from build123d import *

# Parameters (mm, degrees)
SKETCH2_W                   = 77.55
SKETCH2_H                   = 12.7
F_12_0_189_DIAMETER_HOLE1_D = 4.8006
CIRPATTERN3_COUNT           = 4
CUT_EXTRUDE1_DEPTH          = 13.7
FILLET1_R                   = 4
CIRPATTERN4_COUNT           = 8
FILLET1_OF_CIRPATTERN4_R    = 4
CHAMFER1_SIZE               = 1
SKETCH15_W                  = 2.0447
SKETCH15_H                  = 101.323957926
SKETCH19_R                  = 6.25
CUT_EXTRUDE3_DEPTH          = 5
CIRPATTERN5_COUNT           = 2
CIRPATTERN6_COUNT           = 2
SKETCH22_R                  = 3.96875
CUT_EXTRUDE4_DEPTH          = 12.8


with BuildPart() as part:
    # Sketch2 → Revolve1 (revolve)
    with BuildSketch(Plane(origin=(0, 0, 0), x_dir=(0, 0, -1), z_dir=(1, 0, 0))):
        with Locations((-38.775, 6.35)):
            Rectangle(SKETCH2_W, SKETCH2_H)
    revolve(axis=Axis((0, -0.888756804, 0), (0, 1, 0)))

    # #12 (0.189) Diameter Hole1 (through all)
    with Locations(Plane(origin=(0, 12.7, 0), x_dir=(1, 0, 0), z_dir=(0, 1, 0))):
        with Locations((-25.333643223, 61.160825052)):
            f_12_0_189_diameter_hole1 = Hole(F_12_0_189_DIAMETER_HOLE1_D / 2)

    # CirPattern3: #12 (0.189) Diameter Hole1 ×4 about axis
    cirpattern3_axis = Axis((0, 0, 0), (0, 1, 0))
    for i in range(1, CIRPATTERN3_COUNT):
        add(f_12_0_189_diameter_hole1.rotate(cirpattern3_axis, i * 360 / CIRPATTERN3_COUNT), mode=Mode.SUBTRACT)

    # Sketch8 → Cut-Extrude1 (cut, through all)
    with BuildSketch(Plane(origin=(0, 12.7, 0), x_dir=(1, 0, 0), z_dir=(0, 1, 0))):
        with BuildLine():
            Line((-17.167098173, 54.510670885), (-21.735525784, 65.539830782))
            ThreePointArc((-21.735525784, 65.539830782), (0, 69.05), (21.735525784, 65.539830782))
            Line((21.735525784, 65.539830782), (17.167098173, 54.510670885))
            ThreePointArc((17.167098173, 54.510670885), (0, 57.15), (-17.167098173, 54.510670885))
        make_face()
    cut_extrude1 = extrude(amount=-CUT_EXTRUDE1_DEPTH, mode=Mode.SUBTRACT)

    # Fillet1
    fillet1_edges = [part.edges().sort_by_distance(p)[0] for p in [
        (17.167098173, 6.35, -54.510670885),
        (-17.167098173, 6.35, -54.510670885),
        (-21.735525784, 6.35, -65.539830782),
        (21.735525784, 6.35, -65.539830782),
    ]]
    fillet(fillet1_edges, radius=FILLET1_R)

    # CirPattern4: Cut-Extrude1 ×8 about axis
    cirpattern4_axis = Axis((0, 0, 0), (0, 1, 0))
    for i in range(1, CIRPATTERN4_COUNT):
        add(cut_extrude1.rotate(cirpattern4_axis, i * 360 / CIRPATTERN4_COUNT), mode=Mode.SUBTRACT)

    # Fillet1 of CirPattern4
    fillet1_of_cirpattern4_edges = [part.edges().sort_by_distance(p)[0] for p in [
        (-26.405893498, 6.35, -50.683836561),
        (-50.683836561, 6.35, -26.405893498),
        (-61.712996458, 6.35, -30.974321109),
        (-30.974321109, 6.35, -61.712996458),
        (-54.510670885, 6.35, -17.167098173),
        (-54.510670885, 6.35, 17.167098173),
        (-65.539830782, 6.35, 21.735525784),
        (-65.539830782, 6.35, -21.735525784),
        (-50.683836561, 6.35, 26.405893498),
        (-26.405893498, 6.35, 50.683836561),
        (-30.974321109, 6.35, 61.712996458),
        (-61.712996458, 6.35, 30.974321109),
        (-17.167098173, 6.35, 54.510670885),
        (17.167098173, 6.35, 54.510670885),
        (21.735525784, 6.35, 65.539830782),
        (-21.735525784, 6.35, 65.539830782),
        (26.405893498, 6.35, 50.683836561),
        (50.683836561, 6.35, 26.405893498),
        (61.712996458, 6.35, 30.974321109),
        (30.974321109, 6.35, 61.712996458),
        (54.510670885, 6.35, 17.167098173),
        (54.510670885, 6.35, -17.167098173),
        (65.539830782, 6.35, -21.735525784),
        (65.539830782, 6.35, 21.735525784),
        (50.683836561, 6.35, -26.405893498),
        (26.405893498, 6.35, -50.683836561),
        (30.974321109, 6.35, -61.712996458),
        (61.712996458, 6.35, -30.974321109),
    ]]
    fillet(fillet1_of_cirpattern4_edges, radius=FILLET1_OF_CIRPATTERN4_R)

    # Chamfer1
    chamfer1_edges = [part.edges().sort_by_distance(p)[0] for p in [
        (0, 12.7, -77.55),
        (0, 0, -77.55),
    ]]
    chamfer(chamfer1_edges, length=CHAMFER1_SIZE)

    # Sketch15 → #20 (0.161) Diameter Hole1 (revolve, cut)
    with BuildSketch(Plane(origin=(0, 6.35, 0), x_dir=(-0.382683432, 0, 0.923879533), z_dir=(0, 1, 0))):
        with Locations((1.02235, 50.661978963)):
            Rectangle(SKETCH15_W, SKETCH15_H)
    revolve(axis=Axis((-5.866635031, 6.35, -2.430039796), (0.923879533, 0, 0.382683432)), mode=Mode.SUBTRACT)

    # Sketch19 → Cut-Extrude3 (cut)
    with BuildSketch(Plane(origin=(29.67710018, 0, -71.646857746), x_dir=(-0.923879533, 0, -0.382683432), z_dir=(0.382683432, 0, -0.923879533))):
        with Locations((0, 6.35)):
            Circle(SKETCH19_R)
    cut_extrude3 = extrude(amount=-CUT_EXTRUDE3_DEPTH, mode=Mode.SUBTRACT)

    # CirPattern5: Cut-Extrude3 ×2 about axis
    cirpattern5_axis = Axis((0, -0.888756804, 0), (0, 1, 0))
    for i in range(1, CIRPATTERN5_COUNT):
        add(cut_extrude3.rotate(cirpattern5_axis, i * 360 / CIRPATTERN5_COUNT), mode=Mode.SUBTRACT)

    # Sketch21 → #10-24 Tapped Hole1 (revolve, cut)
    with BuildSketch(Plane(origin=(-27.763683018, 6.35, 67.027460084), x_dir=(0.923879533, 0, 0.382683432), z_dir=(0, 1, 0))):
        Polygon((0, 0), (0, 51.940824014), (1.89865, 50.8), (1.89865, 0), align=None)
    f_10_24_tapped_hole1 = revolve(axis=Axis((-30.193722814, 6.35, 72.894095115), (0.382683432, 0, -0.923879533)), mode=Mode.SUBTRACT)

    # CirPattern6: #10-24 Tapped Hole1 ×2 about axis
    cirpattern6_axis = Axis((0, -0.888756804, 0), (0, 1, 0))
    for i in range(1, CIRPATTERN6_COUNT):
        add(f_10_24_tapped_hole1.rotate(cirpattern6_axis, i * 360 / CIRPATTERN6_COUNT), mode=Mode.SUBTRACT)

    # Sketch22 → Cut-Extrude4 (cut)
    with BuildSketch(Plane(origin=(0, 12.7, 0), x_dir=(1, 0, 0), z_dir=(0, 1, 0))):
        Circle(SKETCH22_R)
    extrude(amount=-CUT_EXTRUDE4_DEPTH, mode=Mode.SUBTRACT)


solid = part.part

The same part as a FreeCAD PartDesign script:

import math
import FreeCAD as App
import Part
import Sketcher
from FreeCAD import Vector
Q = App.Units.Quantity


def edges_at(feature, points):
    """Names of the edges that pass closest to the given points."""
    edges = feature.Shape.Edges
    near = lambda p: min(range(len(edges)), key=lambda i: edges[i].distToShape(Part.Vertex(*p))[0])
    return sorted({f"Edge{near(p) + 1}" for p in points})


def add_polygon(sketch, points):
    """Adds a closed chain of lines whose ends are joined by coincident constraints."""
    first, n = sketch.GeometryCount, len(points)
    for a, b in zip(points, points[1:] + points[:1]):
        sketch.addGeometry(Part.LineSegment(App.Vector(*a, 0), App.Vector(*b, 0)), False)
    for i in range(n):
        sketch.addConstraint(Sketcher.Constraint("Coincident", first + i, 2, first + (i + 1) % n, 1))

doc = App.newDocument("Part")
params = doc.addObject("Spreadsheet::Sheet", "Params")
for row, (alias, value) in enumerate([
    ("sketch1_width", "12.7 mm"),
    ("sketch1_height", "77.55 mm"),
    ("revolution_angle", "360 deg"),
    ("hole_diameter", "4.8006 mm"),
    ("sketch3_radius", "57.15 mm"),
    ("sketch3_radius2", "69.05 mm"),
    ("fillet_radius", "4 mm"),
    ("fillet2_radius", "4 mm"),
    ("chamfer_size", "1 mm"),
    ("groove_angle", "360 deg"),
    ("sketch5_diameter", "12.5 mm"),
    ("pocket2_length", "5 mm"),
    ("sketch6_length", "50.8 mm"),
    ("groove2_angle", "360 deg"),
    ("pocket3_length", "12.8 mm"),
], start=1):
    params.set(f"A{row}", alias)
    params.set(f"B{row}", "=" + value)
    params.setAlias(f"B{row}", alias)

body = doc.addObject("PartDesign::Body", "Body")

sketch1 = body.newObject("Sketcher::SketchObject", "Sketch")
sketch1.AttachmentSupport = (doc.getObject("YZ_Plane"), [""])
sketch1.MapMode = "FlatFace"
add_polygon(sketch1, [(13, 78), (0, 78), (0, 0), (13, 0)])
sketch1.addConstraint([
    Sketcher.Constraint("Horizontal", 0),
    Sketcher.Constraint("Vertical", 1),
    Sketcher.Constraint("Horizontal", 2),
    Sketcher.Constraint("Vertical", 3),
    Sketcher.Constraint("Coincident", 1, 2, -1, 1),
    Sketcher.Constraint("DistanceX", 0, 2, 0, 1, Q("12.7 mm")),
    Sketcher.Constraint("DistanceY", 1, 2, 1, 1, Q("77.55 mm")),
])
sketch1.setExpression("Constraints[9]", "Params.sketch1_width")
sketch1.setExpression("Constraints[10]", "Params.sketch1_height")
revolution = body.newObject("PartDesign::Revolution", "Revolution")
revolution.Profile = sketch1
revolution.ReferenceAxis = (sketch1, ["H_Axis"])
revolution.setExpression("Angle", "Params.revolution_angle")

sketch2 = body.newObject("Sketcher::SketchObject", "Sketch001")
sketch2.AttachmentSupport = (doc.getObject("XZ_Plane"), [""])
sketch2.MapMode = "FlatFace"
sketch2.AttachmentOffset = App.Placement(Vector(0, 0, -12.7), App.Rotation())
sketch2.addGeometry(Part.Circle(Vector(-25.3, -61.2, 0), Vector(0, 0, 1), 2.4), False)
sketch2.addConstraint([
    Sketcher.Constraint("Diameter", 0, Q("4.8006 mm")),
    Sketcher.Constraint("DistanceX", 0, 3, -1, 1, Q("25.333643 mm")),
    Sketcher.Constraint("DistanceY", 0, 3, -1, 1, Q("61.160825 mm")),
])
doc.recompute()
hole = body.newObject("PartDesign::Hole", "Hole")
hole.Profile = sketch2
hole.ThreadType = "None"
hole.setExpression("Diameter", "Params.hole_diameter")
hole.DepthType = "ThroughAll"
hole.Reversed = True
doc.recompute()

polarpattern = body.newObject("PartDesign::PolarPattern", "PolarPattern")
polarpattern.Originals = [hole]
polarpattern.Axis = (doc.getObject("Y_Axis"), [""])
polarpattern.Angle = 360
polarpattern.Occurrences = 4
body.Tip = polarpattern

sketch3 = body.newObject("Sketcher::SketchObject", "Sketch002")
sketch3.AttachmentSupport = (doc.getObject("XZ_Plane"), [""])
sketch3.MapMode = "FlatFace"
sketch3.AttachmentOffset = App.Placement(Vector(0, 0, -12.7), App.Rotation())
sketch3.addGeometry([
    Part.LineSegment(Vector(-22, -66, 0), Vector(-17, -55, 0)),
    Part.ArcOfCircle(Part.Circle(Vector(0, 0, 0), Vector(0, 0, 1), 57), math.radians(-107), math.radians(-73)),
    Part.LineSegment(Vector(17, -55, 0), Vector(22, -66, 0)),
    Part.ArcOfCircle(Part.Circle(Vector(0, 0, 0), Vector(0, 0, 1), 69), math.radians(-108), math.radians(-72)),
], False)
sketch3.addConstraint([
    Sketcher.Constraint("Coincident", 0, 2, 1, 1),
    Sketcher.Constraint("Coincident", 1, 2, 2, 1),
    Sketcher.Constraint("Coincident", 2, 2, 3, 2),
    Sketcher.Constraint("Coincident", 3, 1, 0, 1),
    Sketcher.Constraint("Coincident", 1, 3, -1, 1),
    Sketcher.Constraint("Coincident", 3, 3, -1, 1),
    Sketcher.Constraint("Horizontal", 0, 2, 1, 2),
    Sketcher.Constraint("Horizontal", 2, 2, 3, 1),
    Sketcher.Constraint("Radius", 1, Q("57.15 mm")),
    Sketcher.Constraint("Radius", 3, Q("69.05 mm")),
    Sketcher.Constraint("Angle", 0, Q("67.5 deg")),
    Sketcher.Constraint("DistanceX", 0, 2, -1, 1, Q("17.167098 mm")),
])
sketch3.setExpression("Constraints[8]", "Params.sketch3_radius")
sketch3.setExpression("Constraints[9]", "Params.sketch3_radius2")
pocket1 = body.newObject("PartDesign::Pocket", "Pocket")
pocket1.Profile = sketch3
pocket1.Type = "ThroughAll"
pocket1.Reversed = True
doc.recompute()

fillet = body.newObject("PartDesign::Fillet", "Fillet")
fillet.Base = (pocket1, edges_at(pocket1, [
    (17.167, 6.35, -54.511),
    (-17.167, 6.35, -54.511),
    (-21.736, 6.35, -65.54),
    (21.736, 6.35, -65.54),
]))
fillet.setExpression("Radius", "Params.fillet_radius")
doc.recompute()

polarpattern2 = body.newObject("PartDesign::PolarPattern", "PolarPattern001")
polarpattern2.Originals = [pocket1]
polarpattern2.Axis = (doc.getObject("Y_Axis"), [""])
polarpattern2.Angle = 360
polarpattern2.Occurrences = 8
body.Tip = polarpattern2
doc.recompute()

fillet2 = body.newObject("PartDesign::Fillet", "Fillet001")
fillet2.Base = (polarpattern2, edges_at(polarpattern2, [
    (-26.406, 6.35, -50.684),
    (-50.684, 6.35, -26.406),
    (-61.713, 6.35, -30.974),
    (-30.974, 6.35, -61.713),
    (-54.511, 6.35, -17.167),
    (-54.511, 6.35, 17.167),
    (-65.54, 6.35, 21.736),
    (-65.54, 6.35, -21.736),
    (-50.684, 6.35, 26.406),
    (-26.406, 6.35, 50.684),
    (-30.974, 6.35, 61.713),
    (-61.713, 6.35, 30.974),
    (-17.167, 6.35, 54.511),
    (17.167, 6.35, 54.511),
    (21.736, 6.35, 65.54),
    (-21.736, 6.35, 65.54),
    (26.406, 6.35, 50.684),
    (50.684, 6.35, 26.406),
    (61.713, 6.35, 30.974),
    (30.974, 6.35, 61.713),
    (54.511, 6.35, 17.167),
    (54.511, 6.35, -17.167),
    (65.54, 6.35, -21.736),
    (65.54, 6.35, 21.736),
    (50.684, 6.35, -26.406),
    (26.406, 6.35, -50.684),
    (30.974, 6.35, -61.713),
    (61.713, 6.35, -30.974),
]))
fillet2.setExpression("Radius", "Params.fillet2_radius")
doc.recompute()

chamfer = body.newObject("PartDesign::Chamfer", "Chamfer")
chamfer.Base = (fillet2, edges_at(fillet2, [(0, 12.7, -77.55), (0, 0, -77.55)]))
chamfer.setExpression("Size", "Params.chamfer_size")

sketch4 = body.newObject("Sketcher::SketchObject", "Sketch003")
sketch4.AttachmentSupport = (doc.getObject("XZ_Plane"), [""])
sketch4.MapMode = "FlatFace"
sketch4.AttachmentOffset = App.Placement(Vector(0, 0, -6.35), App.Rotation())
add_polygon(sketch4, [(93.6, 38.8), (0, 0), (-0.8, 1.9), (92.8, 40.7)])
sketch4.addGeometry(Part.LineSegment(Vector(0, 0, 0), Vector(93.6, 38.8, 0)), True)
sketch4.addConstraint([
    Sketcher.Constraint("Coincident", 0, 2, -1, 1),
    Sketcher.Constraint("Coincident", 4, 1, -1, 1),
    Sketcher.Constraint("Coincident", 4, 2, 3, 2),
    Sketcher.Constraint("Perpendicular", 0, 1),
    Sketcher.Constraint("Perpendicular", 1, 2),
    Sketcher.Constraint("Perpendicular", 2, 3),
    Sketcher.Constraint("Angle", 0, Q("-157.5 deg")),
    Sketcher.Constraint("DistanceY", -1, 1, 3, 2, Q("38.775 mm")),
    Sketcher.Constraint("Distance", 1, Q("2.0447 mm")),
])
groove = body.newObject("PartDesign::Groove", "Groove")
groove.Profile = sketch4
groove.ReferenceAxis = (sketch4, ["Axis0"])
groove.setExpression("Angle", "Params.groove_angle")

sketch5 = body.newObject("Sketcher::SketchObject", "Sketch004")
sketch5.Placement = App.Placement(Vector(29.6771, 0, -71.646858), App.Rotation(Vector(-0.923879533, 0, -0.382683432), Vector(0, 1.000000001, 0), Vector(0.382683432, 0, -0.923879533), "ZXY"))
sketch5.addGeometry(Part.Circle(Vector(0, 6, 0), Vector(0, 0, 1), 6), False)
sketch5.addConstraint([
    Sketcher.Constraint("PointOnObject", 0, 3, -2),
    Sketcher.Constraint("Diameter", 0, Q("12.5 mm")),
    Sketcher.Constraint("DistanceY", -1, 1, 0, 3, Q("6.35 mm")),
])
sketch5.setExpression("Constraints[1]", "Params.sketch5_diameter")
pocket2 = body.newObject("PartDesign::Pocket", "Pocket001")
pocket2.Profile = sketch5
pocket2.setExpression("Length", "Params.pocket2_length")
doc.recompute()

polarpattern3 = body.newObject("PartDesign::PolarPattern", "PolarPattern002")
polarpattern3.Originals = [pocket2]
polarpattern3.Axis = (doc.getObject("Y_Axis"), [""])
polarpattern3.Angle = 360
polarpattern3.Occurrences = 2
body.Tip = polarpattern3

sketch6 = body.newObject("Sketcher::SketchObject", "Sketch005")
sketch6.AttachmentSupport = (doc.getObject("XZ_Plane"), [""])
sketch6.MapMode = "FlatFace"
sketch6.AttachmentOffset = App.Placement(Vector(0, 0, -6.35), App.Rotation())
add_polygon(sketch6, [(-7.9, 19), (-27.8, 67), (-26, 67.8), (-6.6, 20.8)])
sketch6.addGeometry(Part.LineSegment(Vector(-27.8, 67, 0), Vector(-7.9, 19, 0)), True)
sketch6.addConstraint([
    Sketcher.Constraint("Coincident", 4, 1, 0, 2),
    Sketcher.Constraint("Coincident", 4, 2, 3, 2),
    Sketcher.Constraint("Perpendicular", 0, 1),
    Sketcher.Constraint("Perpendicular", 1, 2),
    Sketcher.Constraint("Angle", 0, Q("112.5 deg")),
    Sketcher.Constraint("Angle", 3, Q("-126.5 deg")),
    Sketcher.Constraint("Distance", 2, Q("50.8 mm")),
    Sketcher.Constraint("DistanceY", 2, 2, 0, 2, Q("46.206498 mm")),
    Sketcher.Constraint("DistanceY", -1, 1, 0, 2, Q("67.02746 mm")),
    Sketcher.Constraint("DistanceX", 1, 2, -1, 1, Q("26.009559 mm")),
])
sketch6.setExpression("Constraints[10]", "Params.sketch6_length")
groove2 = body.newObject("PartDesign::Groove", "Groove001")
groove2.Profile = sketch6
groove2.ReferenceAxis = (sketch6, ["Axis0"])
groove2.setExpression("Angle", "Params.groove2_angle")
doc.recompute()

polarpattern4 = body.newObject("PartDesign::PolarPattern", "PolarPattern003")
polarpattern4.Originals = [groove2]
polarpattern4.Axis = (doc.getObject("Y_Axis"), [""])
polarpattern4.Angle = 360
polarpattern4.Occurrences = 2
body.Tip = polarpattern4

sketch7 = body.newObject("Sketcher::SketchObject", "Sketch006")
sketch7.AttachmentSupport = (doc.getObject("XZ_Plane"), [""])
sketch7.MapMode = "FlatFace"
sketch7.AttachmentOffset = App.Placement(Vector(0, 0, -12.7), App.Rotation())
sketch7.addGeometry(Part.Circle(Vector(0, 0, 0), Vector(0, 0, 1), 4), False)
sketch7.addConstraint([
    Sketcher.Constraint("Coincident", 0, 3, -1, 1),
    Sketcher.Constraint("Diameter", 0, Q("7.9375 mm")),
])
pocket3 = body.newObject("PartDesign::Pocket", "Pocket002")
pocket3.Profile = sketch7
pocket3.setExpression("Length", "Params.pocket3_length")
pocket3.Reversed = True

doc.recompute()
